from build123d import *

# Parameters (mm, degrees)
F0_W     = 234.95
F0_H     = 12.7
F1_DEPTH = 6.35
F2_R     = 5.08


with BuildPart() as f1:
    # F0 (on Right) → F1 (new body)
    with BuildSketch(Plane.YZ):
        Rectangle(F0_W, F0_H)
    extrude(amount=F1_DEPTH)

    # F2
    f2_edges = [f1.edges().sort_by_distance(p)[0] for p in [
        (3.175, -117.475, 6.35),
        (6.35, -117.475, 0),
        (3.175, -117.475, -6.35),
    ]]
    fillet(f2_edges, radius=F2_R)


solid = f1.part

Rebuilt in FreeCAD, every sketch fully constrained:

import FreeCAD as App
import Part
import Sketcher
Q = App.Units.Quantity


def edges_at(feature, points):
    """Names of the edges that pass closest to the given points."""
    edges = feature.Shape.Edges
    near = lambda p: min(range(len(edges)), key=lambda i: edges[i].distToShape(Part.Vertex(*p))[0])
    return sorted({f"Edge{near(p) + 1}" for p in points})

doc = App.newDocument("Part")
params = doc.addObject("Spreadsheet::Sheet", "Params")
for row, (alias, value) in enumerate([
    ("sketch1_height", "0.5 in"),
    ("sketch1_width", "9.25 in"),
    ("pad1_length", "0.25 in"),
    ("fillet_radius", "0.2 in"),
], start=1):
    params.set(f"A{row}", alias)
    params.set(f"B{row}", "=" + value)
    params.setAlias(f"B{row}", alias)

body = doc.addObject("PartDesign::Body", "Body")

sketch1 = body.newObject("Sketcher::SketchObject", "Sketch")
sketch1.AttachmentSupport = (doc.getObject("YZ_Plane"), [""])
sketch1.MapMode = "FlatFace"
sketch1.addGeometry([
    Part.LineSegment(App.Vector(-117, 6, 0), App.Vector(-117, -6, 0)),
    Part.LineSegment(App.Vector(-117, -6, 0), App.Vector(117, -6, 0)),
    Part.LineSegment(App.Vector(117, -6, 0), App.Vector(117, 6, 0)),
    Part.LineSegment(App.Vector(117, 6, 0), App.Vector(-117, 6, 0)),
], False)
sketch1.addConstraint([
    Sketcher.Constraint("Coincident", 0, 2, 1, 1),
    Sketcher.Constraint("Coincident", 1, 2, 2, 1),
    Sketcher.Constraint("Coincident", 2, 2, 3, 1),
    Sketcher.Constraint("Coincident", 3, 2, 0, 1),
    Sketcher.Constraint("Vertical", 0),
    Sketcher.Constraint("Horizontal", 1),
    Sketcher.Constraint("Vertical", 2),
    Sketcher.Constraint("Horizontal", 3),
    Sketcher.Constraint("Symmetric", 0, 2, 2, 2, -1, 1),
    Sketcher.Constraint("DistanceY", 0, 2, 0, 1, Q("0.5 in")),
    Sketcher.Constraint("DistanceX", 1, 1, 1, 2, Q("9.25 in")),
])
sketch1.setExpression("Constraints[9]", "Params.sketch1_height")
sketch1.setExpression("Constraints[10]", "Params.sketch1_width")
pad1 = body.newObject("PartDesign::Pad", "Pad")
pad1.Profile = sketch1
pad1.setExpression("Length", "Params.pad1_length")
doc.recompute()

fillet = body.newObject("PartDesign::Fillet", "Fillet")
fillet.Base = (pad1, edges_at(pad1, [(3.175, -117.475, 6.35), (6.35, -117.475, 0), (3.175, -117.475, -6.35)]))
fillet.setExpression("Radius", "Params.fillet_radius")

doc.recompute()
